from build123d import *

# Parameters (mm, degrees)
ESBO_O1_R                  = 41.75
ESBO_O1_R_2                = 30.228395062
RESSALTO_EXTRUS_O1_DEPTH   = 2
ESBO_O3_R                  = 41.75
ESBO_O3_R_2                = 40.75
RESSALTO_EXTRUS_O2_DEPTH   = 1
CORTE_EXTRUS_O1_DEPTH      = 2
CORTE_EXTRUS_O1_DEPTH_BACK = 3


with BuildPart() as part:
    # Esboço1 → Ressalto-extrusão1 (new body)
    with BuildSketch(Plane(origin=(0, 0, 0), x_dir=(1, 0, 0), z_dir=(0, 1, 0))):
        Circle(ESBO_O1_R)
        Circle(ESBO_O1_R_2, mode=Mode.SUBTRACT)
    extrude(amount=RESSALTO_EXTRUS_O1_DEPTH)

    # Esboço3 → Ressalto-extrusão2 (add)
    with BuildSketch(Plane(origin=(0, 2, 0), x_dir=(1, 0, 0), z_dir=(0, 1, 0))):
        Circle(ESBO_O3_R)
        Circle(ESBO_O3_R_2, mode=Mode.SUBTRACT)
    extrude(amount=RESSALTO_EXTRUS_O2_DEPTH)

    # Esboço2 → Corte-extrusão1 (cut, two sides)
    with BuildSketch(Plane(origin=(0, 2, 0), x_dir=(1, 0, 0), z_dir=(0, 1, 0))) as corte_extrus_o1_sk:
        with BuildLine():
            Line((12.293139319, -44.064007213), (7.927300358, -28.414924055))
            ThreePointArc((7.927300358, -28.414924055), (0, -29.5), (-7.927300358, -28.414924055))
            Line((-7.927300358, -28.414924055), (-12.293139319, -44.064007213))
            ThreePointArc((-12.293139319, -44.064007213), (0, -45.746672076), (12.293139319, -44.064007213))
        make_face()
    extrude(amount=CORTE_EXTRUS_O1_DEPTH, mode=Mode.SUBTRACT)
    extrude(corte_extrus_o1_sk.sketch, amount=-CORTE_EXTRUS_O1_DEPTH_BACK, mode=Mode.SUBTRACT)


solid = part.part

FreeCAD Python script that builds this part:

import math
import FreeCAD as App
import Part
import Sketcher

doc = App.newDocument("Part")
body = doc.addObject("PartDesign::Body", "Body")

# Sketch on XZ plane
sketch1 = body.newObject("Sketcher::SketchObject", "Sketch")
sketch1.AttachmentSupport = (doc.getObject("XZ_Plane"), [""])
sketch1.MapMode = "FlatFace"
sketch1.addGeometry(Part.Circle(App.Vector(0, 0, 0), App.Vector(0, 0, 1), 41.75), False)
sketch1.addGeometry(Part.Circle(App.Vector(0, 0, 0), App.Vector(0, 0, 1), 30.228395), False)
sketch1.addConstraint(Sketcher.Constraint("Coincident", 0, 3, -1, 1))
sketch1.addConstraint(Sketcher.Constraint("Coincident", 1, 3, -1, 1))
sketch1.addConstraint(Sketcher.Constraint("Diameter", 0, 83.5))
sketch1.addConstraint(Sketcher.Constraint("Diameter", 1, 60.45679))
pad1 = body.newObject("PartDesign::Pad", "Pad")
pad1.Profile = sketch1
pad1.Length = 2
pad1.Reversed = True

# Sketch on XZ plane
sketch2 = body.newObject("Sketcher::SketchObject", "Sketch001")
sketch2.AttachmentSupport = (doc.getObject("XZ_Plane"), [""])
sketch2.MapMode = "FlatFace"
sketch2.AttachmentOffset = App.Placement(App.Vector(0, 0, -2), App.Rotation())
sketch2.addGeometry(Part.Circle(App.Vector(0, 0, 0), App.Vector(0, 0, 1), 41.75), False)
sketch2.addGeometry(Part.Circle(App.Vector(0, 0, 0), App.Vector(0, 0, 1), 40.75), False)
sketch2.addConstraint(Sketcher.Constraint("Coincident", 0, 3, -1, 1))
sketch2.addConstraint(Sketcher.Constraint("Coincident", 1, 3, -1, 1))
sketch2.addConstraint(Sketcher.Constraint("Diameter", 0, 83.5))
sketch2.addConstraint(Sketcher.Constraint("Diameter", 1, 81.5))
pad2 = body.newObject("PartDesign::Pad", "Pad001")
pad2.Profile = sketch2
pad2.Length = 1
pad2.Reversed = True

# Sketch on XZ plane
sketch3 = body.newObject("Sketcher::SketchObject", "Sketch002")
sketch3.AttachmentSupport = (doc.getObject("XZ_Plane"), [""])
sketch3.MapMode = "FlatFace"
sketch3.AttachmentOffset = App.Placement(App.Vector(0, 0, -2), App.Rotation())
sketch3.addGeometry(Part.LineSegment(App.Vector(12.293139, 44.064007, 0), App.Vector(7.9273, 28.414924, 0)), False)
sketch3.addGeometry(Part.ArcOfCircle(Part.Circle(App.Vector(0, 0, 0), App.Vector(0, 0, 1), 29.5), math.radians(74.411765), math.radians(105.588235)), False)
sketch3.addGeometry(Part.LineSegment(App.Vector(-7.9273, 28.414924, 0), App.Vector(-12.293139, 44.064007, 0)), False)
sketch3.addGeometry(Part.ArcOfCircle(Part.Circle(App.Vector(0, 0, 0), App.Vector(0, 0, 1), 45.746672), math.radians(74.411765), math.radians(105.588235)), False)
sketch3.addConstraint(Sketcher.Constraint("Coincident", 0, 2, 1, 1))
sketch3.addConstraint(Sketcher.Constraint("Coincident", 1, 2, 2, 1))
sketch3.addConstraint(Sketcher.Constraint("Coincident", 2, 2, 3, 2))
sketch3.addConstraint(Sketcher.Constraint("Coincident", 3, 1, 0, 1))
sketch3.addConstraint(Sketcher.Constraint("Coincident", 1, 3, -1, 1))
sketch3.addConstraint(Sketcher.Constraint("Coincident", 3, 3, -1, 1))
sketch3.addConstraint(Sketcher.Constraint("Horizontal", 0, 2, 1, 2))
sketch3.addConstraint(Sketcher.Constraint("Horizontal", 2, 2, 3, 1))
sketch3.addConstraint(Sketcher.Constraint("Radius", 1, 29.5))
sketch3.addConstraint(Sketcher.Constraint("Radius", 3, 45.746672))
sketch3.addConstraint(Sketcher.Constraint("DistanceX", -1, 1, 0, 2, 7.9273))
sketch3.addConstraint(Sketcher.Constraint("DistanceX", 2, 2, -1, 1, 12.293139))
pocket1 = body.newObject("PartDesign::Pocket", "Pocket")
pocket1.Profile = sketch3
pocket1.Type = "ThroughAll"
pocket1.Midplane = True

doc.recompute()
